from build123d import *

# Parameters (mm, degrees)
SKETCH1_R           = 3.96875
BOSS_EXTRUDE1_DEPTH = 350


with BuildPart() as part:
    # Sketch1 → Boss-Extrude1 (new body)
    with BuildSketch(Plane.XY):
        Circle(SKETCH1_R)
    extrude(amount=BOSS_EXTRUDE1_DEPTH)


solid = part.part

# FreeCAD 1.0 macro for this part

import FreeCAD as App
import Part
import Sketcher
from FreeCAD import Vector

doc = App.newDocument("Part")
body = doc.addObject("PartDesign::Body", "Body")

# Sketch on XY plane
sketch1 = body.newObject("Sketcher::SketchObject", "Sketch")
sketch1.AttachmentSupport = (doc.getObject("XY_Plane"), [""])
sketch1.MapMode = "FlatFace"
sketch1.addGeometry(Part.Circle(Vector(0, 0, 0), Vector(0, 0, 1), 3.96875), False)
sketch1.addConstraint(Sketcher.Constraint("Coincident", 0, 3, -1, 1))
sketch1.addConstraint(Sketcher.Constraint("Diameter", 0, 7.9375))
pad1 = body.newObject("PartDesign::Pad", "Pad")
pad1.Profile = sketch1
pad1.Length = 350

doc.recompute()
